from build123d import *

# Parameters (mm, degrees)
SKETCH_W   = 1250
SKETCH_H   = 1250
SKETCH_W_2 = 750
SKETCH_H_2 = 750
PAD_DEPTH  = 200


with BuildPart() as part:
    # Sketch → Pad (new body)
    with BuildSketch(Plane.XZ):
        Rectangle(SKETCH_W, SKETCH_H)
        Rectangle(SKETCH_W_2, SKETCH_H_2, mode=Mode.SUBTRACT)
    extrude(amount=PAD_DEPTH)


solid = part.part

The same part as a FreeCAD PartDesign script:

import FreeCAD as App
import Part
import Sketcher
Q = App.Units.Quantity


def add_polygon(sketch, points):
    """Adds a closed chain of lines whose ends are joined by coincident constraints."""
    first, n = sketch.GeometryCount, len(points)
    for a, b in zip(points, points[1:] + points[:1]):
        sketch.addGeometry(Part.LineSegment(App.Vector(*a, 0), App.Vector(*b, 0)), False)
    for i in range(n):
        sketch.addConstraint(Sketcher.Constraint("Coincident", first + i, 2, first + (i + 1) % n, 1))

doc = App.newDocument("Part")
body = doc.addObject("PartDesign::Body", "Body")

sketch1 = body.newObject("Sketcher::SketchObject", "Sketch")
sketch1.AttachmentSupport = (doc.getObject("XZ_Plane"), [""])
sketch1.MapMode = "FlatFace"
add_polygon(sketch1, [(-625, 625), (-625, -625), (625, -625), (625, 625)])
add_polygon(sketch1, [(375, -375), (-375, -375), (-375, 375), (375, 375)])
sketch1.addConstraint(Sketcher.Constraint("Vertical", 0))
sketch1.addConstraint(Sketcher.Constraint("Horizontal", 1))
sketch1.addConstraint(Sketcher.Constraint("Vertical", 2))
sketch1.addConstraint(Sketcher.Constraint("Horizontal", 3))
sketch1.addConstraint(Sketcher.Constraint("Horizontal", 4))
sketch1.addConstraint(Sketcher.Constraint("Vertical", 5))
sketch1.addConstraint(Sketcher.Constraint("Horizontal", 6))
sketch1.addConstraint(Sketcher.Constraint("Vertical", 7))
sketch1.addConstraint(Sketcher.Constraint("Symmetric", 0, 2, 2, 2, -1, 1))
sketch1.addConstraint(Sketcher.Constraint("Symmetric", 4, 2, 6, 2, -1, 1))
sketch1.addConstraint(Sketcher.Constraint("Equal", 3, 0))
sketch1.addConstraint(Sketcher.Constraint("Equal", 6, 5))
sketch1.addConstraint(Sketcher.Constraint("DistanceX", 1, 1, 1, 2, Q("1250 mm")))
sketch1.addConstraint(Sketcher.Constraint("DistanceX", 4, 2, 4, 1, Q("750 mm")))
pad1 = body.newObject("PartDesign::Pad", "Pad")
pad1.Profile = sketch1
pad1.Length = 200

doc.recompute()
